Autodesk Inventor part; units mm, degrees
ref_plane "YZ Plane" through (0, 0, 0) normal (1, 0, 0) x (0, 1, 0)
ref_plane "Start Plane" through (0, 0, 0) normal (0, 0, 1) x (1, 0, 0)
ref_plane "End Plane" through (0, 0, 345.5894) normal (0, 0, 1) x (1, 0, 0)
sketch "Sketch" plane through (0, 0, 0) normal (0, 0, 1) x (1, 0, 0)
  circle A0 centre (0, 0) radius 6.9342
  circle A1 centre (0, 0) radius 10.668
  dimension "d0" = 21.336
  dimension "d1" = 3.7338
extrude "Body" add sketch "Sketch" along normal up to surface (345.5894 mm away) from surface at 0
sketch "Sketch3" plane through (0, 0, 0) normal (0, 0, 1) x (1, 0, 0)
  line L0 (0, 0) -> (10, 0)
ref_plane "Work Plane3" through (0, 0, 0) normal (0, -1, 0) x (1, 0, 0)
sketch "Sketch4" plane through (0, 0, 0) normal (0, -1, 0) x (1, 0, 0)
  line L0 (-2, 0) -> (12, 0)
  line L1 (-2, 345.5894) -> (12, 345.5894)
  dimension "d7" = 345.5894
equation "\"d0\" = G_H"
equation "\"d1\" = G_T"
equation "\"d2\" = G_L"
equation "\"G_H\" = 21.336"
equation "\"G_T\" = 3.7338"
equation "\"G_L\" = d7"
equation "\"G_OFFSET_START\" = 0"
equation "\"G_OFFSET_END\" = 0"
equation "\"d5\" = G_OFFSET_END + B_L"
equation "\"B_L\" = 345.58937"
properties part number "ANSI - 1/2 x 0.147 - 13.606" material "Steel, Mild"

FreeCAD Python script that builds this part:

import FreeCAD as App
import Part
import Sketcher
Q = App.Units.Quantity

doc = App.newDocument("Part")
params = doc.addObject("Spreadsheet::Sheet", "Params")
for row, (alias, value) in enumerate([
    ("sketch1_diameter", "0.84 in"),
    ("sketch1_diameter2", "0.546 in"),
    ("pad1_length", "345.5894 mm"),
], start=1):
    params.set(f"A{row}", alias)
    params.set(f"B{row}", "=" + value)
    params.setAlias(f"B{row}", alias)

body = doc.addObject("PartDesign::Body", "Body")

sketch1 = doc.addObject("Sketcher::SketchObject", "Sketch")
body.addObject(sketch1)
sketch1.AttachmentSupport = (doc.XY_Plane, [""])
sketch1.MapMode = "FlatFace"
sketch1.addGeometry([
    Part.Circle(App.Vector(0, 0, 0), App.Vector(0, 0, 1), 11),
    Part.Circle(App.Vector(0, 0, 0), App.Vector(0, 0, 1), 7),
], False)
sketch1.addConstraint([
    Sketcher.Constraint("Coincident", 0, 3, -1, 1),
    Sketcher.Constraint("Coincident", 1, 3, -1, 1),
    Sketcher.Constraint("Diameter", 0, Q("0.84 in")),
    Sketcher.Constraint("Diameter", 1, Q("0.546 in")),
])
sketch1.setExpression("Constraints[2]", "Params.sketch1_diameter")
sketch1.setExpression("Constraints[3]", "Params.sketch1_diameter2")
pad1 = doc.addObject("PartDesign::Pad", "Pad")
body.addObject(pad1)
pad1.Profile = sketch1
pad1.setExpression("Length", "Params.pad1_length")

doc.recompute()
